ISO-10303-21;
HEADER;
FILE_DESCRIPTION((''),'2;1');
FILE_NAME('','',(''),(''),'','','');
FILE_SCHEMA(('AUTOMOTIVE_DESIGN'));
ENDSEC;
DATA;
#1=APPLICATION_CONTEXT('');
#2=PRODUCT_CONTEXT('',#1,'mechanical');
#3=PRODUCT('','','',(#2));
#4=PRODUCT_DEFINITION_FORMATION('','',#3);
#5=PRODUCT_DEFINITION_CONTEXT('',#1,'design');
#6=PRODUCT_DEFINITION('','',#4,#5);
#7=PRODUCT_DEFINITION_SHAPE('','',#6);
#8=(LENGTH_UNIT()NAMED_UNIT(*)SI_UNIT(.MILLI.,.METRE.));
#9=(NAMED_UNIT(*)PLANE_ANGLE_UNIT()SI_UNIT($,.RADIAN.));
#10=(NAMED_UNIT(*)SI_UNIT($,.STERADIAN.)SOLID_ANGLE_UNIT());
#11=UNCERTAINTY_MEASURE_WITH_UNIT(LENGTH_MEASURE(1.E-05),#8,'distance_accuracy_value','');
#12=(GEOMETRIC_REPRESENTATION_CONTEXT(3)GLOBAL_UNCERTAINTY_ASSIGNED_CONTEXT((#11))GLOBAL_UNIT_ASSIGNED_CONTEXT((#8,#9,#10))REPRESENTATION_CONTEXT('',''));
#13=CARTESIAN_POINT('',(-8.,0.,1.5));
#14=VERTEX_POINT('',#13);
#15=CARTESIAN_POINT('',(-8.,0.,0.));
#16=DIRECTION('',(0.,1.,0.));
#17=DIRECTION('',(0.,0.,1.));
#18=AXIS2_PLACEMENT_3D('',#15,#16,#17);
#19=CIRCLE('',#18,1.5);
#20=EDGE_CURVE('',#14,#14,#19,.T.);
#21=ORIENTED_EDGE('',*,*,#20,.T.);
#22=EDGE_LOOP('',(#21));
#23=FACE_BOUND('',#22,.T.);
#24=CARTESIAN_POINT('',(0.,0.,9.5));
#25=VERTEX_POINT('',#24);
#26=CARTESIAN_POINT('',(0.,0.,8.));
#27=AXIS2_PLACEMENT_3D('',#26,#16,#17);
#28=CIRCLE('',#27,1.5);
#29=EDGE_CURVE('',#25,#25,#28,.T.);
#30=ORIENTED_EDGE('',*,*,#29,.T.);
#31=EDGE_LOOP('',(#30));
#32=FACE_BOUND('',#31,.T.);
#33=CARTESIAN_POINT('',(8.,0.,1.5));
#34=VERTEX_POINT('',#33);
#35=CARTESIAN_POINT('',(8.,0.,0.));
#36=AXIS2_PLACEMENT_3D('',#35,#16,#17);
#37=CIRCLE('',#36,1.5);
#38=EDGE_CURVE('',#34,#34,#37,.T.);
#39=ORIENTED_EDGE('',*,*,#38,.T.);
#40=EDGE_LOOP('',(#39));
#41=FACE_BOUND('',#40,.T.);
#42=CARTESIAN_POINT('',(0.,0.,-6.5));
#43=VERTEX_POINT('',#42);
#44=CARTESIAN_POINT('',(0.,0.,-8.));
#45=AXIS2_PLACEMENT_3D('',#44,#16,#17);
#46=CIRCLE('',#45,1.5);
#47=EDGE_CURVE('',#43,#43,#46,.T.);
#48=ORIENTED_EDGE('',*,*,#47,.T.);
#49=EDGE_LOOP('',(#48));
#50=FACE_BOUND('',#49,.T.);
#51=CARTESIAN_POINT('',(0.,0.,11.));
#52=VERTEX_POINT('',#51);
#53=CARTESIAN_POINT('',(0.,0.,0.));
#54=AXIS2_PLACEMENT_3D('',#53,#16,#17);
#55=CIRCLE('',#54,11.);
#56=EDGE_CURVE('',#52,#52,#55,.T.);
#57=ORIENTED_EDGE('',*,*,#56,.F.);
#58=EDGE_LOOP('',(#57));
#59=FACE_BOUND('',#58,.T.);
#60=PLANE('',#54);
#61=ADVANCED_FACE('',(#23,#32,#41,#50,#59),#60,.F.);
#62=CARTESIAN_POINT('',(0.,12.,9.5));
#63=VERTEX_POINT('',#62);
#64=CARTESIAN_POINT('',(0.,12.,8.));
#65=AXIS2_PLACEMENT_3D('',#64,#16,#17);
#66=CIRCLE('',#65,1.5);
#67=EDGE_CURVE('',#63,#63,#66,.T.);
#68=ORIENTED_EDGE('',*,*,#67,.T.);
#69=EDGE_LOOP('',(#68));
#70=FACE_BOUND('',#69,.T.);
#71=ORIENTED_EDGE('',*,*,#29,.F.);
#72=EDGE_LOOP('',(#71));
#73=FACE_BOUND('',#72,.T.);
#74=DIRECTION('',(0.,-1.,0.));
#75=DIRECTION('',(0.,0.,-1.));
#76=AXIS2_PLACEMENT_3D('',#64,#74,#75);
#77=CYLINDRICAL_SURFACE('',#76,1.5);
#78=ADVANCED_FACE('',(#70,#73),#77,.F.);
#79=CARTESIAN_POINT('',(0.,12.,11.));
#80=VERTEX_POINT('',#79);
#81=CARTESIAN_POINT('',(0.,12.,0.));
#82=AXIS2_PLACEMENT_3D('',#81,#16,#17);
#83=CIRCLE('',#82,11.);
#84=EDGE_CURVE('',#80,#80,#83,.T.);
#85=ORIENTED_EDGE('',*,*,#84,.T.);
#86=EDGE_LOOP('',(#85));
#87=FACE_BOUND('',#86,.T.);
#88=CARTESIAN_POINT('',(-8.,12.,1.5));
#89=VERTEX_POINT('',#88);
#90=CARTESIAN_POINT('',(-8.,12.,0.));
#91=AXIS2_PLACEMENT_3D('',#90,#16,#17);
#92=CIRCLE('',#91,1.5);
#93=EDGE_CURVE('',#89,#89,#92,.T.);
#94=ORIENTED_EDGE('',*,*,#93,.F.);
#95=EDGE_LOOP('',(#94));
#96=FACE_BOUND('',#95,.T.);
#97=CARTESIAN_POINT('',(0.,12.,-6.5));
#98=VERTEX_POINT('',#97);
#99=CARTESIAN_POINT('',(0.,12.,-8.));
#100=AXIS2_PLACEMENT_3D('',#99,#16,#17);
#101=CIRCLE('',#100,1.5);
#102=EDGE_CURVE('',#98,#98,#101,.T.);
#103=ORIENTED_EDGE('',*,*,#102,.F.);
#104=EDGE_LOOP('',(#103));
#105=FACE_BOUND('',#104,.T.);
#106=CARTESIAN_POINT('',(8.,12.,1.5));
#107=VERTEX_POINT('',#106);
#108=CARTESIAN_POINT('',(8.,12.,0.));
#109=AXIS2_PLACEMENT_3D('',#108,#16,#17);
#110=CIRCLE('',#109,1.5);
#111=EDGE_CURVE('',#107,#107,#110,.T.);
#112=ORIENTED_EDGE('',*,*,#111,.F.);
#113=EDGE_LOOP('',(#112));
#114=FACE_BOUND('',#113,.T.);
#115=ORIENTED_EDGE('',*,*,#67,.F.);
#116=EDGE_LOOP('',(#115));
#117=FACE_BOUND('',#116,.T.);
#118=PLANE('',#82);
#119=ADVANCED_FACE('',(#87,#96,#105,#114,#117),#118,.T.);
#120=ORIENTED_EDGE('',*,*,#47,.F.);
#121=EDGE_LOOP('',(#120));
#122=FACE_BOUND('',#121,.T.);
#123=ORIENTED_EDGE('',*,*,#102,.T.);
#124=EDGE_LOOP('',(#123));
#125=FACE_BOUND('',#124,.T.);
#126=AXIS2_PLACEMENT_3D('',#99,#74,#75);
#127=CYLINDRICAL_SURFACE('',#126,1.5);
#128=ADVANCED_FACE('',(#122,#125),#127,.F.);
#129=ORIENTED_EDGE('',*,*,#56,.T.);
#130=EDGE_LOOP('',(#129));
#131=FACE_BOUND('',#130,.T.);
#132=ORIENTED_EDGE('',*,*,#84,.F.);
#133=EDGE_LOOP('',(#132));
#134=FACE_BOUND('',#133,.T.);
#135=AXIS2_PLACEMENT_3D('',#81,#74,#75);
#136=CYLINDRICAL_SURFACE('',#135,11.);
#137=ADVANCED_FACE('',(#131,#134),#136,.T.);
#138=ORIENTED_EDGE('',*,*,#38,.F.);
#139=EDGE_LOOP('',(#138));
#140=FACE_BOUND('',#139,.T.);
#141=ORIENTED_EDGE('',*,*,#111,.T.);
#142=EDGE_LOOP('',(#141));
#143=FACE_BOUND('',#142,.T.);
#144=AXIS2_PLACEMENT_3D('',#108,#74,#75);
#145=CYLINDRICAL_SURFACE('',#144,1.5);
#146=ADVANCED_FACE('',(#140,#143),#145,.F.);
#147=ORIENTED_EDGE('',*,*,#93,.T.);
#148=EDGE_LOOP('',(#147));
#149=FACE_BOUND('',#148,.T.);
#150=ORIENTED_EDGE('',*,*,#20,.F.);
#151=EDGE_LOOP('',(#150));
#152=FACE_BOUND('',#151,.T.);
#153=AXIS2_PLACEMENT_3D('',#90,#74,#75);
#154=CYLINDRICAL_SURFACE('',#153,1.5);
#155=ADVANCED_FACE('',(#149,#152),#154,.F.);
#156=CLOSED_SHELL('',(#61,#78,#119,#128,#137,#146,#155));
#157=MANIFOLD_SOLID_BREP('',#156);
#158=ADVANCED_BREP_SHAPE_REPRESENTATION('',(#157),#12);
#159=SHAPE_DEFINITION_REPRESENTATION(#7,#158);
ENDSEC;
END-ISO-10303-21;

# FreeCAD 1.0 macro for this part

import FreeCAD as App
import Part
import Sketcher
Q = App.Units.Quantity

doc = App.newDocument("Part")
body = doc.addObject("PartDesign::Body", "Body")

# Sketch on XZ plane
sketch1 = body.newObject("Sketcher::SketchObject", "Sketch")
sketch1.AttachmentSupport = (doc.getObject("XZ_Plane"), [""])
sketch1.MapMode = "FlatFace"
sketch1.addGeometry([
    Part.Circle(App.Vector(0, 0, 0), App.Vector(0, 0, 1), 11),  # 0
    Part.Circle(App.Vector(0, -8, 0), App.Vector(0, 0, 1), 1.5),  # 1
    Part.Circle(App.Vector(-8, 0, 0), App.Vector(0, 0, 1), 1.5),  # 2
    Part.Circle(App.Vector(8, 0, 0), App.Vector(0, 0, 1), 1.5),  # 3
    Part.Circle(App.Vector(0, 8, 0), App.Vector(0, 0, 1), 1.5),  # 4
], False)
sketch1.addConstraint([
    Sketcher.Constraint("Coincident", 0, 3, -1, 1),
    Sketcher.Constraint("Equal", 1, 2),
    Sketcher.Constraint("Equal", 2, 3),
    Sketcher.Constraint("Equal", 3, 4),
    Sketcher.Constraint("Symmetric", 2, 3, 3, 3, -1, 1),
    Sketcher.Constraint("Symmetric", 1, 3, 4, 3, -1, 1),
    Sketcher.Constraint("PointOnObject", 1, 3, -2),
    Sketcher.Constraint("PointOnObject", 2, 3, -1),
    Sketcher.Constraint("Diameter", 0, Q("22 mm")),
    Sketcher.Constraint("Diameter", 1, Q("3 mm")),
    Sketcher.Constraint("DistanceY", 1, 3, -1, 1, Q("8 mm")),
    Sketcher.Constraint("DistanceX", 2, 3, -1, 1, Q("8 mm")),
])
pad1 = body.newObject("PartDesign::Pad", "Pad")
pad1.Profile = sketch1
pad1.Length = 12
pad1.Reversed = True

doc.recompute()
